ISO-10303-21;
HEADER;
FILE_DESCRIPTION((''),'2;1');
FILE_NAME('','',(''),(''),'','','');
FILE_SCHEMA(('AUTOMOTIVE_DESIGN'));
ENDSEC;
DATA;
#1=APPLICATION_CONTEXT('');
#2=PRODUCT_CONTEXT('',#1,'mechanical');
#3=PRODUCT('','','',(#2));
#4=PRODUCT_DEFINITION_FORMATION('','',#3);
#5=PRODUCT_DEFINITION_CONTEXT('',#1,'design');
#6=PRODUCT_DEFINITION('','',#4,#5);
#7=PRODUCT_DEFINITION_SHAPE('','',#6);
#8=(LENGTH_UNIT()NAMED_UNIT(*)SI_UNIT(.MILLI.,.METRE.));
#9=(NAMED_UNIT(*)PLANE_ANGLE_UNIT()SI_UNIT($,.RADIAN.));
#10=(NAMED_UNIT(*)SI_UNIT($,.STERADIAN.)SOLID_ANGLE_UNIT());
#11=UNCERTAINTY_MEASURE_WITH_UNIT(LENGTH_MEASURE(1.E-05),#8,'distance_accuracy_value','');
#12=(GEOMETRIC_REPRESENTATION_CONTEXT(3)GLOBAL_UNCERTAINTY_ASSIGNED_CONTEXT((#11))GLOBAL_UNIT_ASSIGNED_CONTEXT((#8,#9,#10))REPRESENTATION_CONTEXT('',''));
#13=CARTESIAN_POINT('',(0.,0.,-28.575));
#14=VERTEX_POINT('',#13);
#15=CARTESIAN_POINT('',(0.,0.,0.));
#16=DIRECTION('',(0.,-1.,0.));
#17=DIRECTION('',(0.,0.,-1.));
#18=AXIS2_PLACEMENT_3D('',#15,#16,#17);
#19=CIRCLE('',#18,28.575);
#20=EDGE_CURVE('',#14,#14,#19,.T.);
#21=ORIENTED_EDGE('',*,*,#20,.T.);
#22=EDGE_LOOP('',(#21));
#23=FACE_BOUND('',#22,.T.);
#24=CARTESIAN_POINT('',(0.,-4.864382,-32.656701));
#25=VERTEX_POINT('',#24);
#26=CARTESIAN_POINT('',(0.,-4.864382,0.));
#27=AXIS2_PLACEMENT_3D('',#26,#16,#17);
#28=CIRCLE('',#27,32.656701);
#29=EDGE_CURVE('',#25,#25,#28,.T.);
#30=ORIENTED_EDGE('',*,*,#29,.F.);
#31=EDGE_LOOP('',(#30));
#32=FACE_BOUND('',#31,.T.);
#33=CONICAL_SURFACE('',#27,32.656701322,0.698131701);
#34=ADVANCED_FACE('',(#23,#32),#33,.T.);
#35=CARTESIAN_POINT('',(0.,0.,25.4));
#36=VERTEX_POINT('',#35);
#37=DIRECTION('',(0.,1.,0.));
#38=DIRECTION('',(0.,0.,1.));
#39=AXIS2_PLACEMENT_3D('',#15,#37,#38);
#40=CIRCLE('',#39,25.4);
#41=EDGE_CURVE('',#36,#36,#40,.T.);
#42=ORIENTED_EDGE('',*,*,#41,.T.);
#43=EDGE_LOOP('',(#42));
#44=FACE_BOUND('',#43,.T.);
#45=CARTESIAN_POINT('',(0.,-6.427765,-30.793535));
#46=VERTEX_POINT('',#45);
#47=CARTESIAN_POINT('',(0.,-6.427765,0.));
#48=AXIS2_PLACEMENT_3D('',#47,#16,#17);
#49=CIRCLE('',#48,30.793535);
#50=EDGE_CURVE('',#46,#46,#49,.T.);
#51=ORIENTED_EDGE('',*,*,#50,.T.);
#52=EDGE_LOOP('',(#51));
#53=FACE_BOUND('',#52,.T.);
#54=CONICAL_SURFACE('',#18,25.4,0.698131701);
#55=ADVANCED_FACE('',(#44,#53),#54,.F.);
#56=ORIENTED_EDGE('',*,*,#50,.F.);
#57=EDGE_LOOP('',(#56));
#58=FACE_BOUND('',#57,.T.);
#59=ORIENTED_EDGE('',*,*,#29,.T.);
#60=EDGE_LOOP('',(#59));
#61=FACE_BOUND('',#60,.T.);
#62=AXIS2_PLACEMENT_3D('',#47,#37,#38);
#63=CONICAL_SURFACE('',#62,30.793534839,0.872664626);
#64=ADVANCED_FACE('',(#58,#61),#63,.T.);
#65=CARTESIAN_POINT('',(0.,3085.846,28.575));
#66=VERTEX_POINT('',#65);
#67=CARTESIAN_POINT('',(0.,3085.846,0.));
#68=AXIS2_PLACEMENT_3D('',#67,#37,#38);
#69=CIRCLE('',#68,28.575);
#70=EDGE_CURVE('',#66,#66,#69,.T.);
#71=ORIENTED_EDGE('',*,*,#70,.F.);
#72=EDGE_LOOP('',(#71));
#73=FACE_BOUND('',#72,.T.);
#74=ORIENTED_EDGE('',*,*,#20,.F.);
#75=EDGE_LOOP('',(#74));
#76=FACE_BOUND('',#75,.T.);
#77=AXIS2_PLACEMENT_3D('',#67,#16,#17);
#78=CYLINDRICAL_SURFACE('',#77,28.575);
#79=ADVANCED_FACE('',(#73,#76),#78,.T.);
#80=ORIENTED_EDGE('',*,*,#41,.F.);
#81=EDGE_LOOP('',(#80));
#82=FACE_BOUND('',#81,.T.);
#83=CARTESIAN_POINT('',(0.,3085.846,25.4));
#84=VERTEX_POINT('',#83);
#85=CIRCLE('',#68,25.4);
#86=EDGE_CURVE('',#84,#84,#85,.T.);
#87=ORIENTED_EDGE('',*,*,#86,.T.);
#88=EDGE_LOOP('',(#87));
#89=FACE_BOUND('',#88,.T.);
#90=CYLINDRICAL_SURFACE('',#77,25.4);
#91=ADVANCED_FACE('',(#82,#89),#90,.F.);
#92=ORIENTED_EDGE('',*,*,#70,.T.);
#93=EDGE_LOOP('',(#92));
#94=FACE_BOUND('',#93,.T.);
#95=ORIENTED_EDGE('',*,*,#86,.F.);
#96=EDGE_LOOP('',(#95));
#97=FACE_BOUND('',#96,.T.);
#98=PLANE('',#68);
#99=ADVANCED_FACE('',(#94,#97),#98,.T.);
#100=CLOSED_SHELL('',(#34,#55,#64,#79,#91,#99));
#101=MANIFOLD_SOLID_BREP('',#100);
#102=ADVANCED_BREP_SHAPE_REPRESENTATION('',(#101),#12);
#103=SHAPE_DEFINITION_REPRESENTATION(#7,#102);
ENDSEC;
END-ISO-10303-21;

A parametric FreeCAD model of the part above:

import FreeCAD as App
import Part
import Sketcher
Q = App.Units.Quantity

doc = App.newDocument("Part")
body = doc.addObject("PartDesign::Body", "Body")

sketch1 = body.newObject("Sketcher::SketchObject", "Sketch")
sketch1.AttachmentSupport = (doc.getObject("XZ_Plane"), [""])
sketch1.MapMode = "FlatFace"
sketch1.addGeometry(Part.Circle(App.Vector(0, 0, 0), App.Vector(0, 0, 1), 29), False)
sketch1.addGeometry(Part.Circle(App.Vector(0, 0, 0), App.Vector(0, 0, 1), 25), False)
sketch1.addConstraint(Sketcher.Constraint("Coincident", 0, 3, -1, 1))
sketch1.addConstraint(Sketcher.Constraint("Coincident", 1, 3, -1, 1))
sketch1.addConstraint(Sketcher.Constraint("Diameter", 1, Q("2 in")))
sketch1.addConstraint(Sketcher.Constraint("Diameter", 0, Q("2.25 in")))
pad1 = body.newObject("PartDesign::Pad", "Pad")
pad1.Profile = sketch1
pad1.Length = Q("121.49 in")
pad1.Reversed = True

sketch2 = body.newObject("Sketcher::SketchObject", "Sketch001")
sketch2.AttachmentSupport = (doc.getObject("XY_Plane"), [""])
sketch2.MapMode = "FlatFace"
sketch2.addGeometry(Part.LineSegment(App.Vector(32.7, -4.9, 0), App.Vector(28.6, 0, 0)), False)
sketch2.addGeometry(Part.LineSegment(App.Vector(28.6, 0, 0), App.Vector(25.4, 0, 0)), False)
sketch2.addGeometry(Part.LineSegment(App.Vector(25.4, 0, 0), App.Vector(30.8, -6.4, 0)), False)
sketch2.addGeometry(Part.LineSegment(App.Vector(30.8, -6.4, 0), App.Vector(32.7, -4.9, 0)), False)
sketch2.addConstraint(Sketcher.Constraint("Coincident", 0, 2, 1, 1))
sketch2.addConstraint(Sketcher.Constraint("Coincident", 1, 2, 2, 1))
sketch2.addConstraint(Sketcher.Constraint("Coincident", 2, 2, 3, 1))
sketch2.addConstraint(Sketcher.Constraint("Coincident", 3, 2, 0, 1))
sketch2.addConstraint(Sketcher.Constraint("Horizontal", 1))
sketch2.addConstraint(Sketcher.Constraint("PointOnObject", 0, 2, -1))
sketch2.addConstraint(Sketcher.Constraint("Parallel", 0, 2))
sketch2.addConstraint(Sketcher.Constraint("Perpendicular", 2, 3))
sketch2.addConstraint(Sketcher.Constraint("DistanceX", -1, 1, 1, 2, Q("1 in")))
sketch2.addConstraint(Sketcher.Constraint("Angle", 0, Q("130 deg")))
sketch2.addConstraint(Sketcher.Constraint("Distance", 0, Q("0.25 in")))
sketch2.addConstraint(Sketcher.Constraint("DistanceX", 1, 2, 1, 1, Q("0.125 in")))
revolution = body.newObject("PartDesign::Revolution", "Revolution")
revolution.Profile = sketch2
revolution.ReferenceAxis = (sketch2, ["V_Axis"])
revolution.Angle = 360

doc.recompute()
